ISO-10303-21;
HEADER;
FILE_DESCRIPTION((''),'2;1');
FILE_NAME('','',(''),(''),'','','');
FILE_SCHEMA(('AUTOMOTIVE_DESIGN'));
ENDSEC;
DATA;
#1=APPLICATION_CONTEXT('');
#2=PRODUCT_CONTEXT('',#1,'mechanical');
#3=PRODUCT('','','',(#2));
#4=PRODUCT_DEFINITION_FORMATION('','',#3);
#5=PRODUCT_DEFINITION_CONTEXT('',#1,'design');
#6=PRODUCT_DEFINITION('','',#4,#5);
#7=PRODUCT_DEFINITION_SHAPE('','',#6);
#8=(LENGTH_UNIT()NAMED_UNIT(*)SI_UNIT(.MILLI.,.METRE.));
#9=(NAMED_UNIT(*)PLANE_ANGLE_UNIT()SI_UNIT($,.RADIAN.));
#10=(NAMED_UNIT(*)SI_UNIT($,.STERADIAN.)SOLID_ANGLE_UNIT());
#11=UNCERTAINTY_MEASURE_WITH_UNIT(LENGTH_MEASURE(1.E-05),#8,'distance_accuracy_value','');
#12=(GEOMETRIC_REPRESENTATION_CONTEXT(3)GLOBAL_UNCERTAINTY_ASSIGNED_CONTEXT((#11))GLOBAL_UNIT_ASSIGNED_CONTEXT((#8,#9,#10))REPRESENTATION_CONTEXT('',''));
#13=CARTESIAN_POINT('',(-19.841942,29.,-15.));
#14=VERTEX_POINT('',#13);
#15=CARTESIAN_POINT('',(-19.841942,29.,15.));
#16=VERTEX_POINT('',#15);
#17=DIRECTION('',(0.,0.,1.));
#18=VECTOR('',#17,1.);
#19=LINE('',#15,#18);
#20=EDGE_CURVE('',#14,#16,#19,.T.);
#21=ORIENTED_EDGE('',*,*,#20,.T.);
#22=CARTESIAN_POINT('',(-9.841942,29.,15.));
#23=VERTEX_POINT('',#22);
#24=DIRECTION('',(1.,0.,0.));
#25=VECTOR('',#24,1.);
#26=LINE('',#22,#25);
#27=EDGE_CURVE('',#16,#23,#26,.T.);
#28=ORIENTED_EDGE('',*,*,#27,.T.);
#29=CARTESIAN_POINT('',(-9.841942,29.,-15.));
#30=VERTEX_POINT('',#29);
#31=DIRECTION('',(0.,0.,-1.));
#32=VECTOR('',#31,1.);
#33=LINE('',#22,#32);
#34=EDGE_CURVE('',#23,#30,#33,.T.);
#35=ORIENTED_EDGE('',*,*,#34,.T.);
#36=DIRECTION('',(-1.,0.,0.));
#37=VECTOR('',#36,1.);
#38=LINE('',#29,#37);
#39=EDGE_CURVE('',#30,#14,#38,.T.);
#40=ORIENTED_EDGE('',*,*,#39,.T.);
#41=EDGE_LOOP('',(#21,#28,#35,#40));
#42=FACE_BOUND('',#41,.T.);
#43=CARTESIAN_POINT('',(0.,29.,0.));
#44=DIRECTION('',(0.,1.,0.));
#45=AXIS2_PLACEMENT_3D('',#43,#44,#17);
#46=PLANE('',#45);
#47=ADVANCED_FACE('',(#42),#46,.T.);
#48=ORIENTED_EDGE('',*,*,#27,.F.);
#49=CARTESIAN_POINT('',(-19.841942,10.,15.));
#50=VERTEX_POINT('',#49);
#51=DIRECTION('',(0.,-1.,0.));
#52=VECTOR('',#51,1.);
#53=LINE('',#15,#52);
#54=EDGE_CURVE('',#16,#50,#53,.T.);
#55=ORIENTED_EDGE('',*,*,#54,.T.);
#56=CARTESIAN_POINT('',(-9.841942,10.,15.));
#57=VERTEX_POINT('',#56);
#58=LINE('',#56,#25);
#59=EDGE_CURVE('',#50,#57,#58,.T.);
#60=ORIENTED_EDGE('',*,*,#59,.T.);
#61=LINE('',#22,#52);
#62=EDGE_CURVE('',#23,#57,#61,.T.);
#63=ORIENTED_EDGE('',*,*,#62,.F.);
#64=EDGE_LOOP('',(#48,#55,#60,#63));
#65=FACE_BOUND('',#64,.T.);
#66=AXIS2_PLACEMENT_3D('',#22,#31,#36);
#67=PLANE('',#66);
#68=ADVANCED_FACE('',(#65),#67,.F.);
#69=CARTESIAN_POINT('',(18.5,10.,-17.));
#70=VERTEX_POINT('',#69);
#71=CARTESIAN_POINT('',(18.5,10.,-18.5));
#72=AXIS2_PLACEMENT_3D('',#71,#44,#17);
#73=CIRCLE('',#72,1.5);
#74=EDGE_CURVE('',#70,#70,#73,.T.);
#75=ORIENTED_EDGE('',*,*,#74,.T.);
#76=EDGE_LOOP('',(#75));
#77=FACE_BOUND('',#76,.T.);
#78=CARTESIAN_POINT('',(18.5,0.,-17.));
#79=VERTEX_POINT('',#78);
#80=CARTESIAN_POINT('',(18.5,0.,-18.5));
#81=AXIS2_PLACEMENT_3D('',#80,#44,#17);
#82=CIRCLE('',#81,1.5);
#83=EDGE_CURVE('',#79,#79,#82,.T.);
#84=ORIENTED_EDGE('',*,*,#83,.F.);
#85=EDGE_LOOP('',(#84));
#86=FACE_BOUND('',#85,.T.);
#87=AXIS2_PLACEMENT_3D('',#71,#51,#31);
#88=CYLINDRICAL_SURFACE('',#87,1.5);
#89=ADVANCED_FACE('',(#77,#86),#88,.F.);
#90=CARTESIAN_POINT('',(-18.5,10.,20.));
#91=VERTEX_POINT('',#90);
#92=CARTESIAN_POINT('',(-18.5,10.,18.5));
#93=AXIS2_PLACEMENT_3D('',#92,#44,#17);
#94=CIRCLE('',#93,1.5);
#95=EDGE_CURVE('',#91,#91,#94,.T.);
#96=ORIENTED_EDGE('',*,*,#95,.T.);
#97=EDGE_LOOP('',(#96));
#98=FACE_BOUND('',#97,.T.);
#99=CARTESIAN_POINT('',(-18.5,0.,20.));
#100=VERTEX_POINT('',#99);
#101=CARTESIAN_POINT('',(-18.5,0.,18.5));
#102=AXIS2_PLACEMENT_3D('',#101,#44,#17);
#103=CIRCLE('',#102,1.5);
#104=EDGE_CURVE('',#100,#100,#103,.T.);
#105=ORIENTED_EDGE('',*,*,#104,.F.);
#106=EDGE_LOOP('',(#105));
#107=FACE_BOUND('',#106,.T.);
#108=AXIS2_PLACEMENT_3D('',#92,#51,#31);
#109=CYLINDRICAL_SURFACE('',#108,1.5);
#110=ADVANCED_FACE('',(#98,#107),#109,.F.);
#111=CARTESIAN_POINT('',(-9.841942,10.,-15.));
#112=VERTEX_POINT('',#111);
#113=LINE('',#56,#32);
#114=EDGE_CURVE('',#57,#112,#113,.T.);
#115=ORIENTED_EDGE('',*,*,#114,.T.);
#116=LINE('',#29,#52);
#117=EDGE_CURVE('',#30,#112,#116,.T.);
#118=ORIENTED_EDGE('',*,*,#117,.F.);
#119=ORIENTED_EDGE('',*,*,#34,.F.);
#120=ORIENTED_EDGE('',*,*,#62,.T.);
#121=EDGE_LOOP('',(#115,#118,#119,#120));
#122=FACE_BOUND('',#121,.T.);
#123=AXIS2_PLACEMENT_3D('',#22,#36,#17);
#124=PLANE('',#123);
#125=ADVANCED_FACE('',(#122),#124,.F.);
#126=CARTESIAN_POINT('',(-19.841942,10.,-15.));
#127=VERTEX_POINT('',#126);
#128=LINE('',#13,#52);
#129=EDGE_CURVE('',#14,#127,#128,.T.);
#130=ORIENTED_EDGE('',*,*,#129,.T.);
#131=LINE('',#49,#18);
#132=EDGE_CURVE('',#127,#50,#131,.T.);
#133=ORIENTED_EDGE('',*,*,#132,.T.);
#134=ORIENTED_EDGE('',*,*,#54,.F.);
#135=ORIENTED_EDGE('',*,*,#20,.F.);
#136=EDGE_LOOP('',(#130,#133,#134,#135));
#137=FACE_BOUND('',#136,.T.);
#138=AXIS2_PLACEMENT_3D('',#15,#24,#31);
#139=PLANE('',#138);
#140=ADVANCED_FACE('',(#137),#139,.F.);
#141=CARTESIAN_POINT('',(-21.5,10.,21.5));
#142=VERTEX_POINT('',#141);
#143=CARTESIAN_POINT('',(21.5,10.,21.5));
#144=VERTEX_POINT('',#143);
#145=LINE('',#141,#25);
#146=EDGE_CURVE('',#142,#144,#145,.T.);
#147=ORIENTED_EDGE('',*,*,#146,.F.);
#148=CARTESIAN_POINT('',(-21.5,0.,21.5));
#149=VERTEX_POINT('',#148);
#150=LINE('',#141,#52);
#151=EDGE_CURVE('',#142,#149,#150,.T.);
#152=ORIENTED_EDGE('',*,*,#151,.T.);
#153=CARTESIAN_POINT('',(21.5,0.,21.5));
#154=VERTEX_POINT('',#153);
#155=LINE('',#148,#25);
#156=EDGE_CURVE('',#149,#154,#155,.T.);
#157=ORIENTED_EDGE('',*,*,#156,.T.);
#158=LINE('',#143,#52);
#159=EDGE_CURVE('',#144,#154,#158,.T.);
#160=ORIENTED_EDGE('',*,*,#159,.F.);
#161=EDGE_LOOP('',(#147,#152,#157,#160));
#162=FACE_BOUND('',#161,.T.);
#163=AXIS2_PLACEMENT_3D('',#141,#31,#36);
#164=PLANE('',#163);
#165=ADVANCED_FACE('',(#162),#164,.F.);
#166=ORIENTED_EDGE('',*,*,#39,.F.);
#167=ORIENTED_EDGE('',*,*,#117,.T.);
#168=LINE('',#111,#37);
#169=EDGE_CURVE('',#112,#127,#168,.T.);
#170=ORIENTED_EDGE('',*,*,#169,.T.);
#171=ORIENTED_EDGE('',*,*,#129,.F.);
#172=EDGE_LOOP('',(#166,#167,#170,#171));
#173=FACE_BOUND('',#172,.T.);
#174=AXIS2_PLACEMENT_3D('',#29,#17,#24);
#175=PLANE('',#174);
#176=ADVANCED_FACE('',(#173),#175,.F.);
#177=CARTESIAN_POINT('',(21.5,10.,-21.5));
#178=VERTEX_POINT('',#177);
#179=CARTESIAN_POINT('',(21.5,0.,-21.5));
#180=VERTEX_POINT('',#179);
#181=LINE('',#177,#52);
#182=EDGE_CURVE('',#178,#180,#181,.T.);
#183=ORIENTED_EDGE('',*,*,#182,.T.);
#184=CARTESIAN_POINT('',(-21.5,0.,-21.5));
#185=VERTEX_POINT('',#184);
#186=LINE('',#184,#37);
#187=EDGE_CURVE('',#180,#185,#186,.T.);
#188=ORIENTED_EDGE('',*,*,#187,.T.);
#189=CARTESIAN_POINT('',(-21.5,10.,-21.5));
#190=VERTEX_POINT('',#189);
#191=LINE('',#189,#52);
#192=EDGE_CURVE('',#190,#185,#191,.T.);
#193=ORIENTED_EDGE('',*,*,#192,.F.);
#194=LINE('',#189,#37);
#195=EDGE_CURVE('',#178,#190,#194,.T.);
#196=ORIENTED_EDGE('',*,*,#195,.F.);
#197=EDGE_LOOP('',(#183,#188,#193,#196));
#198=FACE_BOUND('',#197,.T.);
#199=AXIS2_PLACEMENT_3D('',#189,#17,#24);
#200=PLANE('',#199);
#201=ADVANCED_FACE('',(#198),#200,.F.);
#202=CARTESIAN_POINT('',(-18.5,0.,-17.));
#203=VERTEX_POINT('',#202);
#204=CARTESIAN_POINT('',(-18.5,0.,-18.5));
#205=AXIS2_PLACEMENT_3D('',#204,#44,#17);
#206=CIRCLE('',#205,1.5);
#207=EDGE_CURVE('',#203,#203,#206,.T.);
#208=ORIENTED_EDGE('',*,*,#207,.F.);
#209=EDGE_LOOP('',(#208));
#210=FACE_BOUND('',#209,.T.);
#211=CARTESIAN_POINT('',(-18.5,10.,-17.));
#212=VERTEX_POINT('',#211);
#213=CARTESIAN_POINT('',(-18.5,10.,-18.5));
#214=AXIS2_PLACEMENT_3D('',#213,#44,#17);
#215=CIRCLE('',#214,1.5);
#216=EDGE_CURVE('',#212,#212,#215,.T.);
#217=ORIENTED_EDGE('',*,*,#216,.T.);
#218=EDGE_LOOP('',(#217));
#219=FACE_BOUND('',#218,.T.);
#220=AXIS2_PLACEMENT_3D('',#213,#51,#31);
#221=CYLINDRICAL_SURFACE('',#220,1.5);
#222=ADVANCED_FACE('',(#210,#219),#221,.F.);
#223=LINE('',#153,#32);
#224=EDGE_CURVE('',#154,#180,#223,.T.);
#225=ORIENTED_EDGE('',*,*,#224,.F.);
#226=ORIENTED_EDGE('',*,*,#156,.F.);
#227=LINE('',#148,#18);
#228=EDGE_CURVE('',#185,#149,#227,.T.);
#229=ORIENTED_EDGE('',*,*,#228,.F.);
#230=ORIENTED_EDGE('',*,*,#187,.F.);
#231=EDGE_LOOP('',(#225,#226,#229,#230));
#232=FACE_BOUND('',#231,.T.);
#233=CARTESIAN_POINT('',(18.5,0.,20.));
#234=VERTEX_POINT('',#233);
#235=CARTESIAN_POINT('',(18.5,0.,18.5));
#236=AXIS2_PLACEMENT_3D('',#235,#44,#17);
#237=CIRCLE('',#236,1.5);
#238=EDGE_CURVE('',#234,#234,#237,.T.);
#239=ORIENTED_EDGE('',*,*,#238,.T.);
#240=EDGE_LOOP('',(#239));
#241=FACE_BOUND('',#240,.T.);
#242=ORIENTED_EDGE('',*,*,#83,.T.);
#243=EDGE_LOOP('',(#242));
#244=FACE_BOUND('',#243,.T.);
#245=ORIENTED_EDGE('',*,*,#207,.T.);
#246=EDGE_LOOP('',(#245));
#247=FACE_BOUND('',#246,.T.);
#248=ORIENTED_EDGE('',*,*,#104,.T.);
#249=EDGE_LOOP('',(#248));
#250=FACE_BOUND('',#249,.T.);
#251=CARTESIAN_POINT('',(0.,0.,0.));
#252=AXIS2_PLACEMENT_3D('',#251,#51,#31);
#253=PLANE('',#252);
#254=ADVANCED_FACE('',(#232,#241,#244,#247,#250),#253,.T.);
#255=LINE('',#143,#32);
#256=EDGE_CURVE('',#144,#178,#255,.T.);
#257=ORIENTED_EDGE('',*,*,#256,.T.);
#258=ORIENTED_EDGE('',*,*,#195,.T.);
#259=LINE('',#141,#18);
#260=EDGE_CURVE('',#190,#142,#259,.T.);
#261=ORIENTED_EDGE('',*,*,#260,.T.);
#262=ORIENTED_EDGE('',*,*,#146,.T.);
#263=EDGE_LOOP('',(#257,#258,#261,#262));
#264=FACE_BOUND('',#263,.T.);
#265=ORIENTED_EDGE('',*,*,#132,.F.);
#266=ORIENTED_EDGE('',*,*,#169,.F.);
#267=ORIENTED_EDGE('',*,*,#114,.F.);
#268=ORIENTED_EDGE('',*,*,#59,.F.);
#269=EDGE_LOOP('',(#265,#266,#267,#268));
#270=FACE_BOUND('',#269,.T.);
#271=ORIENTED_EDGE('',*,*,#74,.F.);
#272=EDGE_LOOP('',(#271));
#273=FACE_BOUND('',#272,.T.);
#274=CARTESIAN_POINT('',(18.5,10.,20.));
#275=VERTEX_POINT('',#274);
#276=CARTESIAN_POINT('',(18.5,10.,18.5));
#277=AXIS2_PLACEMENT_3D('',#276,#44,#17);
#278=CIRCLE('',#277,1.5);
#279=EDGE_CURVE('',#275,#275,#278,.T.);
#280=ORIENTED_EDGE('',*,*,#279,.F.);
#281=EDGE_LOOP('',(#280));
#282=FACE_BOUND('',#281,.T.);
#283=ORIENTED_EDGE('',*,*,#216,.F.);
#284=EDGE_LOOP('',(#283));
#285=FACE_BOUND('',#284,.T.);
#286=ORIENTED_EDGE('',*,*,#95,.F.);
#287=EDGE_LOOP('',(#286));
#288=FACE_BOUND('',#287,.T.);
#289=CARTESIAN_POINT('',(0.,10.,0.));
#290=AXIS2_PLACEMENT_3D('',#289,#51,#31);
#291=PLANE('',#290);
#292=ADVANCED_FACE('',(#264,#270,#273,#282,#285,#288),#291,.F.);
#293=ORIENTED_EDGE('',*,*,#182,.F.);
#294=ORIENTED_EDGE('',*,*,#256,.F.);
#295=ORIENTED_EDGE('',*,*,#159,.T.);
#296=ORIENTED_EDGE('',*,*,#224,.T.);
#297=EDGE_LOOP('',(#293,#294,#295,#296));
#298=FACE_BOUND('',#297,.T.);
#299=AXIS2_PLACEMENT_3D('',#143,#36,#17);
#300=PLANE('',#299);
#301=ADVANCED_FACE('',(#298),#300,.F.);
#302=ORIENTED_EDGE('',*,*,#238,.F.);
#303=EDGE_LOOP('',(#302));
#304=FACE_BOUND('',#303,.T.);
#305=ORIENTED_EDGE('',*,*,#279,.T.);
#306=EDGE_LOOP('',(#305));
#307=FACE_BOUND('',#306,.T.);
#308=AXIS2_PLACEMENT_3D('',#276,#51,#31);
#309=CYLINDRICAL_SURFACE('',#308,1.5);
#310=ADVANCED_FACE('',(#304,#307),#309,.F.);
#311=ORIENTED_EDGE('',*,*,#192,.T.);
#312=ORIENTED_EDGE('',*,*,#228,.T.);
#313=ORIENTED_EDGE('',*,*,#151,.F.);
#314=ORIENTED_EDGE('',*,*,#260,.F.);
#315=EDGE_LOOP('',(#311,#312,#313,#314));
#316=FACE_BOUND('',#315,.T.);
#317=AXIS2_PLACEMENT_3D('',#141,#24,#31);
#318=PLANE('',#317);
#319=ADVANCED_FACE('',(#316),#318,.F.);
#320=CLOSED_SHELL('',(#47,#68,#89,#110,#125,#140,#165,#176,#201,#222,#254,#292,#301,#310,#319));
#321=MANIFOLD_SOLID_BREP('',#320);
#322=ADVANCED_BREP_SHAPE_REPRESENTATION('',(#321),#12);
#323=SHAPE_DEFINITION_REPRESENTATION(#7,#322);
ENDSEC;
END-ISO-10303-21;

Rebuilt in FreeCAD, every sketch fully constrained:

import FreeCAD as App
import Part
import Sketcher
from FreeCAD import Vector


def add_polygon(sketch, points):
    """Adds a closed chain of lines whose ends are joined by coincident constraints."""
    first, n = sketch.GeometryCount, len(points)
    for a, b in zip(points, points[1:] + points[:1]):
        sketch.addGeometry(Part.LineSegment(App.Vector(*a, 0), App.Vector(*b, 0)), False)
    for i in range(n):
        sketch.addConstraint(Sketcher.Constraint("Coincident", first + i, 2, first + (i + 1) % n, 1))

doc = App.newDocument("Part")
body = doc.addObject("PartDesign::Body", "Body")

# Sketch on XZ plane
sketch1 = body.newObject("Sketcher::SketchObject", "Sketch")
sketch1.AttachmentSupport = (doc.getObject("XZ_Plane"), [""])
sketch1.MapMode = "FlatFace"
add_polygon(sketch1, [(-21.5, -21.5), (-21.5, 21.5), (21.5, 21.5), (21.5, -21.5)])  # lines 0-3
sketch1.addGeometry(Part.Circle(Vector(-18.5, 18.5, 0), Vector(0, 0, 1), 1.5), False)  # 4
sketch1.addGeometry(Part.Circle(Vector(18.5, 18.5, 0), Vector(0, 0, 1), 1.5), False)  # 5
sketch1.addGeometry(Part.Circle(Vector(-18.5, -18.5, 0), Vector(0, 0, 1), 1.5), False)  # 6
sketch1.addGeometry(Part.Circle(Vector(18.5, -18.5, 0), Vector(0, 0, 1), 1.5), False)  # 7
sketch1.addConstraint(Sketcher.Constraint("Vertical", 0))
sketch1.addConstraint(Sketcher.Constraint("Horizontal", 1))
sketch1.addConstraint(Sketcher.Constraint("Vertical", 2))
sketch1.addConstraint(Sketcher.Constraint("Horizontal", 3))
sketch1.addConstraint(Sketcher.Constraint("Equal", 4, 5))
sketch1.addConstraint(Sketcher.Constraint("Equal", 5, 6))
sketch1.addConstraint(Sketcher.Constraint("Equal", 6, 7))
sketch1.addConstraint(Sketcher.Constraint("Symmetric", 5, 3, 6, 3, -1, 1))
sketch1.addConstraint(Sketcher.Constraint("Symmetric", 4, 3, 7, 3, -1, 1))
sketch1.addConstraint(Sketcher.Constraint("Symmetric", 0, 2, 2, 2, -1, 1))
sketch1.addConstraint(Sketcher.Constraint("Symmetric", 4, 3, 5, 3, -2))
sketch1.addConstraint(Sketcher.Constraint("Equal", 3, 0))
sketch1.addConstraint(Sketcher.Constraint("Diameter", 4, 3.0))
sketch1.addConstraint(Sketcher.Constraint("DistanceX", 1, 1, 1, 2, 43.0))
sketch1.addConstraint(Sketcher.Constraint("DistanceX", 4, 3, 5, 3, 37.0))
sketch1.addConstraint(Sketcher.Constraint("DistanceY", 6, 3, 4, 3, 37.0))
pad1 = body.newObject("PartDesign::Pad", "Pad")
pad1.Profile = sketch1
pad1.Length = 10
pad1.Reversed = True

# Sketch on XZ plane
sketch2 = body.newObject("Sketcher::SketchObject", "Sketch001")
sketch2.AttachmentSupport = (doc.getObject("XZ_Plane"), [""])
sketch2.MapMode = "FlatFace"
sketch2.AttachmentOffset = App.Placement(Vector(0, 0, -10), App.Rotation())
add_polygon(sketch2, [(-20, -15), (-20, 15), (-10, 15), (-10, -15)])  # lines 0-3
sketch2.addConstraint(Sketcher.Constraint("Vertical", 0))
sketch2.addConstraint(Sketcher.Constraint("Horizontal", 1))
sketch2.addConstraint(Sketcher.Constraint("Vertical", 2))
sketch2.addConstraint(Sketcher.Constraint("Horizontal", 3))
sketch2.addConstraint(Sketcher.Constraint("DistanceX", 1, 1, 1, 2, 10.0))
sketch2.addConstraint(Sketcher.Constraint("DistanceY", 0, 1, 0, 2, 30.0))
sketch2.addConstraint(Sketcher.Constraint("DistanceY", -1, 1, 0, 2, 15.0))
sketch2.addConstraint(Sketcher.Constraint("DistanceX", 0, 2, -1, 1, 19.841942))
pad2 = body.newObject("PartDesign::Pad", "Pad001")
pad2.Profile = sketch2
pad2.Length = 19
pad2.Reversed = True

doc.recompute()
